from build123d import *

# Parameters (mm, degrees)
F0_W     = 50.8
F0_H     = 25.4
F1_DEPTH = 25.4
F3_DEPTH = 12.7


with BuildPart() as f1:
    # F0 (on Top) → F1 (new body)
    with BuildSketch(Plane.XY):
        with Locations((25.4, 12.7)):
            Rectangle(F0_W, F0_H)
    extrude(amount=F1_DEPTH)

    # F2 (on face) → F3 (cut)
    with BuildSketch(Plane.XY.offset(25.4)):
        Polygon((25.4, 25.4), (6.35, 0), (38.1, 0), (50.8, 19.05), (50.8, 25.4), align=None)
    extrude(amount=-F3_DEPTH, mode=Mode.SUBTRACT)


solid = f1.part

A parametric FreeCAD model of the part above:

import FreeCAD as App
import Part
import Sketcher
from FreeCAD import Vector
Q = App.Units.Quantity

doc = App.newDocument("Part")
body = doc.addObject("PartDesign::Body", "Body")

sketch1 = body.newObject("Sketcher::SketchObject", "Sketch")
sketch1.AttachmentSupport = (doc.getObject("XY_Plane"), [""])
sketch1.MapMode = "FlatFace"
sketch1.addGeometry([
    Part.LineSegment(Vector(0, 25, 0), Vector(0, 0, 0)),
    Part.LineSegment(Vector(0, 0, 0), Vector(51, 0, 0)),
    Part.LineSegment(Vector(51, 0, 0), Vector(51, 25, 0)),
    Part.LineSegment(Vector(51, 25, 0), Vector(0, 25, 0)),
], False)
sketch1.addConstraint([
    Sketcher.Constraint("Coincident", 0, 2, 1, 1),
    Sketcher.Constraint("Coincident", 1, 2, 2, 1),
    Sketcher.Constraint("Coincident", 2, 2, 3, 1),
    Sketcher.Constraint("Coincident", 3, 2, 0, 1),
    Sketcher.Constraint("Vertical", 0),
    Sketcher.Constraint("Horizontal", 1),
    Sketcher.Constraint("Vertical", 2),
    Sketcher.Constraint("Horizontal", 3),
    Sketcher.Constraint("Coincident", 0, 2, -1, 1),
    Sketcher.Constraint("DistanceX", 1, 1, 1, 2, Q("2 in")),
    Sketcher.Constraint("DistanceY", 0, 2, 0, 1, Q("1 in")),
])
pad1 = body.newObject("PartDesign::Pad", "Pad")
pad1.Profile = sketch1
pad1.Length = Q("1 in")

sketch2 = body.newObject("Sketcher::SketchObject", "Sketch001")
sketch2.AttachmentSupport = (doc.getObject("XY_Plane"), [""])
sketch2.MapMode = "FlatFace"
sketch2.AttachmentOffset = App.Placement(Vector(0, 0, 1 * 25.4), App.Rotation())
sketch2.addGeometry([
    Part.LineSegment(Vector(25, 25, 0), Vector(6, 0, 0)),
    Part.LineSegment(Vector(6, 0, 0), Vector(38, 0, 0)),
    Part.LineSegment(Vector(38, 0, 0), Vector(51, 19, 0)),
    Part.LineSegment(Vector(51, 19, 0), Vector(51, 25, 0)),
    Part.LineSegment(Vector(51, 25, 0), Vector(25, 25, 0)),
], False)
sketch2.addConstraint([
    Sketcher.Constraint("Coincident", 0, 2, 1, 1),
    Sketcher.Constraint("Coincident", 1, 2, 2, 1),
    Sketcher.Constraint("Coincident", 2, 2, 3, 1),
    Sketcher.Constraint("Coincident", 3, 2, 4, 1),
    Sketcher.Constraint("Coincident", 4, 2, 0, 1),
    Sketcher.Constraint("Horizontal", 1),
    Sketcher.Constraint("Vertical", 3),
    Sketcher.Constraint("Horizontal", 4),
    Sketcher.Constraint("PointOnObject", 0, 2, -1),
    Sketcher.Constraint("DistanceX", 4, 2, 4, 1, Q("1 in")),
    Sketcher.Constraint("DistanceX", -1, 1, 2, 2, Q("2 in")),
    Sketcher.Constraint("DistanceY", -1, 1, 3, 2, Q("1 in")),
    Sketcher.Constraint("DistanceX", 1, 1, 1, 2, Q("1.25 in")),
    Sketcher.Constraint("DistanceY", 3, 1, 3, 2, Q("0.25 in")),
    Sketcher.Constraint("DistanceX", -1, 1, 1, 2, Q("1.5 in")),
])
pocket1 = body.newObject("PartDesign::Pocket", "Pocket")
pocket1.Profile = sketch2
pocket1.Length = Q("0.5 in")

doc.recompute()
